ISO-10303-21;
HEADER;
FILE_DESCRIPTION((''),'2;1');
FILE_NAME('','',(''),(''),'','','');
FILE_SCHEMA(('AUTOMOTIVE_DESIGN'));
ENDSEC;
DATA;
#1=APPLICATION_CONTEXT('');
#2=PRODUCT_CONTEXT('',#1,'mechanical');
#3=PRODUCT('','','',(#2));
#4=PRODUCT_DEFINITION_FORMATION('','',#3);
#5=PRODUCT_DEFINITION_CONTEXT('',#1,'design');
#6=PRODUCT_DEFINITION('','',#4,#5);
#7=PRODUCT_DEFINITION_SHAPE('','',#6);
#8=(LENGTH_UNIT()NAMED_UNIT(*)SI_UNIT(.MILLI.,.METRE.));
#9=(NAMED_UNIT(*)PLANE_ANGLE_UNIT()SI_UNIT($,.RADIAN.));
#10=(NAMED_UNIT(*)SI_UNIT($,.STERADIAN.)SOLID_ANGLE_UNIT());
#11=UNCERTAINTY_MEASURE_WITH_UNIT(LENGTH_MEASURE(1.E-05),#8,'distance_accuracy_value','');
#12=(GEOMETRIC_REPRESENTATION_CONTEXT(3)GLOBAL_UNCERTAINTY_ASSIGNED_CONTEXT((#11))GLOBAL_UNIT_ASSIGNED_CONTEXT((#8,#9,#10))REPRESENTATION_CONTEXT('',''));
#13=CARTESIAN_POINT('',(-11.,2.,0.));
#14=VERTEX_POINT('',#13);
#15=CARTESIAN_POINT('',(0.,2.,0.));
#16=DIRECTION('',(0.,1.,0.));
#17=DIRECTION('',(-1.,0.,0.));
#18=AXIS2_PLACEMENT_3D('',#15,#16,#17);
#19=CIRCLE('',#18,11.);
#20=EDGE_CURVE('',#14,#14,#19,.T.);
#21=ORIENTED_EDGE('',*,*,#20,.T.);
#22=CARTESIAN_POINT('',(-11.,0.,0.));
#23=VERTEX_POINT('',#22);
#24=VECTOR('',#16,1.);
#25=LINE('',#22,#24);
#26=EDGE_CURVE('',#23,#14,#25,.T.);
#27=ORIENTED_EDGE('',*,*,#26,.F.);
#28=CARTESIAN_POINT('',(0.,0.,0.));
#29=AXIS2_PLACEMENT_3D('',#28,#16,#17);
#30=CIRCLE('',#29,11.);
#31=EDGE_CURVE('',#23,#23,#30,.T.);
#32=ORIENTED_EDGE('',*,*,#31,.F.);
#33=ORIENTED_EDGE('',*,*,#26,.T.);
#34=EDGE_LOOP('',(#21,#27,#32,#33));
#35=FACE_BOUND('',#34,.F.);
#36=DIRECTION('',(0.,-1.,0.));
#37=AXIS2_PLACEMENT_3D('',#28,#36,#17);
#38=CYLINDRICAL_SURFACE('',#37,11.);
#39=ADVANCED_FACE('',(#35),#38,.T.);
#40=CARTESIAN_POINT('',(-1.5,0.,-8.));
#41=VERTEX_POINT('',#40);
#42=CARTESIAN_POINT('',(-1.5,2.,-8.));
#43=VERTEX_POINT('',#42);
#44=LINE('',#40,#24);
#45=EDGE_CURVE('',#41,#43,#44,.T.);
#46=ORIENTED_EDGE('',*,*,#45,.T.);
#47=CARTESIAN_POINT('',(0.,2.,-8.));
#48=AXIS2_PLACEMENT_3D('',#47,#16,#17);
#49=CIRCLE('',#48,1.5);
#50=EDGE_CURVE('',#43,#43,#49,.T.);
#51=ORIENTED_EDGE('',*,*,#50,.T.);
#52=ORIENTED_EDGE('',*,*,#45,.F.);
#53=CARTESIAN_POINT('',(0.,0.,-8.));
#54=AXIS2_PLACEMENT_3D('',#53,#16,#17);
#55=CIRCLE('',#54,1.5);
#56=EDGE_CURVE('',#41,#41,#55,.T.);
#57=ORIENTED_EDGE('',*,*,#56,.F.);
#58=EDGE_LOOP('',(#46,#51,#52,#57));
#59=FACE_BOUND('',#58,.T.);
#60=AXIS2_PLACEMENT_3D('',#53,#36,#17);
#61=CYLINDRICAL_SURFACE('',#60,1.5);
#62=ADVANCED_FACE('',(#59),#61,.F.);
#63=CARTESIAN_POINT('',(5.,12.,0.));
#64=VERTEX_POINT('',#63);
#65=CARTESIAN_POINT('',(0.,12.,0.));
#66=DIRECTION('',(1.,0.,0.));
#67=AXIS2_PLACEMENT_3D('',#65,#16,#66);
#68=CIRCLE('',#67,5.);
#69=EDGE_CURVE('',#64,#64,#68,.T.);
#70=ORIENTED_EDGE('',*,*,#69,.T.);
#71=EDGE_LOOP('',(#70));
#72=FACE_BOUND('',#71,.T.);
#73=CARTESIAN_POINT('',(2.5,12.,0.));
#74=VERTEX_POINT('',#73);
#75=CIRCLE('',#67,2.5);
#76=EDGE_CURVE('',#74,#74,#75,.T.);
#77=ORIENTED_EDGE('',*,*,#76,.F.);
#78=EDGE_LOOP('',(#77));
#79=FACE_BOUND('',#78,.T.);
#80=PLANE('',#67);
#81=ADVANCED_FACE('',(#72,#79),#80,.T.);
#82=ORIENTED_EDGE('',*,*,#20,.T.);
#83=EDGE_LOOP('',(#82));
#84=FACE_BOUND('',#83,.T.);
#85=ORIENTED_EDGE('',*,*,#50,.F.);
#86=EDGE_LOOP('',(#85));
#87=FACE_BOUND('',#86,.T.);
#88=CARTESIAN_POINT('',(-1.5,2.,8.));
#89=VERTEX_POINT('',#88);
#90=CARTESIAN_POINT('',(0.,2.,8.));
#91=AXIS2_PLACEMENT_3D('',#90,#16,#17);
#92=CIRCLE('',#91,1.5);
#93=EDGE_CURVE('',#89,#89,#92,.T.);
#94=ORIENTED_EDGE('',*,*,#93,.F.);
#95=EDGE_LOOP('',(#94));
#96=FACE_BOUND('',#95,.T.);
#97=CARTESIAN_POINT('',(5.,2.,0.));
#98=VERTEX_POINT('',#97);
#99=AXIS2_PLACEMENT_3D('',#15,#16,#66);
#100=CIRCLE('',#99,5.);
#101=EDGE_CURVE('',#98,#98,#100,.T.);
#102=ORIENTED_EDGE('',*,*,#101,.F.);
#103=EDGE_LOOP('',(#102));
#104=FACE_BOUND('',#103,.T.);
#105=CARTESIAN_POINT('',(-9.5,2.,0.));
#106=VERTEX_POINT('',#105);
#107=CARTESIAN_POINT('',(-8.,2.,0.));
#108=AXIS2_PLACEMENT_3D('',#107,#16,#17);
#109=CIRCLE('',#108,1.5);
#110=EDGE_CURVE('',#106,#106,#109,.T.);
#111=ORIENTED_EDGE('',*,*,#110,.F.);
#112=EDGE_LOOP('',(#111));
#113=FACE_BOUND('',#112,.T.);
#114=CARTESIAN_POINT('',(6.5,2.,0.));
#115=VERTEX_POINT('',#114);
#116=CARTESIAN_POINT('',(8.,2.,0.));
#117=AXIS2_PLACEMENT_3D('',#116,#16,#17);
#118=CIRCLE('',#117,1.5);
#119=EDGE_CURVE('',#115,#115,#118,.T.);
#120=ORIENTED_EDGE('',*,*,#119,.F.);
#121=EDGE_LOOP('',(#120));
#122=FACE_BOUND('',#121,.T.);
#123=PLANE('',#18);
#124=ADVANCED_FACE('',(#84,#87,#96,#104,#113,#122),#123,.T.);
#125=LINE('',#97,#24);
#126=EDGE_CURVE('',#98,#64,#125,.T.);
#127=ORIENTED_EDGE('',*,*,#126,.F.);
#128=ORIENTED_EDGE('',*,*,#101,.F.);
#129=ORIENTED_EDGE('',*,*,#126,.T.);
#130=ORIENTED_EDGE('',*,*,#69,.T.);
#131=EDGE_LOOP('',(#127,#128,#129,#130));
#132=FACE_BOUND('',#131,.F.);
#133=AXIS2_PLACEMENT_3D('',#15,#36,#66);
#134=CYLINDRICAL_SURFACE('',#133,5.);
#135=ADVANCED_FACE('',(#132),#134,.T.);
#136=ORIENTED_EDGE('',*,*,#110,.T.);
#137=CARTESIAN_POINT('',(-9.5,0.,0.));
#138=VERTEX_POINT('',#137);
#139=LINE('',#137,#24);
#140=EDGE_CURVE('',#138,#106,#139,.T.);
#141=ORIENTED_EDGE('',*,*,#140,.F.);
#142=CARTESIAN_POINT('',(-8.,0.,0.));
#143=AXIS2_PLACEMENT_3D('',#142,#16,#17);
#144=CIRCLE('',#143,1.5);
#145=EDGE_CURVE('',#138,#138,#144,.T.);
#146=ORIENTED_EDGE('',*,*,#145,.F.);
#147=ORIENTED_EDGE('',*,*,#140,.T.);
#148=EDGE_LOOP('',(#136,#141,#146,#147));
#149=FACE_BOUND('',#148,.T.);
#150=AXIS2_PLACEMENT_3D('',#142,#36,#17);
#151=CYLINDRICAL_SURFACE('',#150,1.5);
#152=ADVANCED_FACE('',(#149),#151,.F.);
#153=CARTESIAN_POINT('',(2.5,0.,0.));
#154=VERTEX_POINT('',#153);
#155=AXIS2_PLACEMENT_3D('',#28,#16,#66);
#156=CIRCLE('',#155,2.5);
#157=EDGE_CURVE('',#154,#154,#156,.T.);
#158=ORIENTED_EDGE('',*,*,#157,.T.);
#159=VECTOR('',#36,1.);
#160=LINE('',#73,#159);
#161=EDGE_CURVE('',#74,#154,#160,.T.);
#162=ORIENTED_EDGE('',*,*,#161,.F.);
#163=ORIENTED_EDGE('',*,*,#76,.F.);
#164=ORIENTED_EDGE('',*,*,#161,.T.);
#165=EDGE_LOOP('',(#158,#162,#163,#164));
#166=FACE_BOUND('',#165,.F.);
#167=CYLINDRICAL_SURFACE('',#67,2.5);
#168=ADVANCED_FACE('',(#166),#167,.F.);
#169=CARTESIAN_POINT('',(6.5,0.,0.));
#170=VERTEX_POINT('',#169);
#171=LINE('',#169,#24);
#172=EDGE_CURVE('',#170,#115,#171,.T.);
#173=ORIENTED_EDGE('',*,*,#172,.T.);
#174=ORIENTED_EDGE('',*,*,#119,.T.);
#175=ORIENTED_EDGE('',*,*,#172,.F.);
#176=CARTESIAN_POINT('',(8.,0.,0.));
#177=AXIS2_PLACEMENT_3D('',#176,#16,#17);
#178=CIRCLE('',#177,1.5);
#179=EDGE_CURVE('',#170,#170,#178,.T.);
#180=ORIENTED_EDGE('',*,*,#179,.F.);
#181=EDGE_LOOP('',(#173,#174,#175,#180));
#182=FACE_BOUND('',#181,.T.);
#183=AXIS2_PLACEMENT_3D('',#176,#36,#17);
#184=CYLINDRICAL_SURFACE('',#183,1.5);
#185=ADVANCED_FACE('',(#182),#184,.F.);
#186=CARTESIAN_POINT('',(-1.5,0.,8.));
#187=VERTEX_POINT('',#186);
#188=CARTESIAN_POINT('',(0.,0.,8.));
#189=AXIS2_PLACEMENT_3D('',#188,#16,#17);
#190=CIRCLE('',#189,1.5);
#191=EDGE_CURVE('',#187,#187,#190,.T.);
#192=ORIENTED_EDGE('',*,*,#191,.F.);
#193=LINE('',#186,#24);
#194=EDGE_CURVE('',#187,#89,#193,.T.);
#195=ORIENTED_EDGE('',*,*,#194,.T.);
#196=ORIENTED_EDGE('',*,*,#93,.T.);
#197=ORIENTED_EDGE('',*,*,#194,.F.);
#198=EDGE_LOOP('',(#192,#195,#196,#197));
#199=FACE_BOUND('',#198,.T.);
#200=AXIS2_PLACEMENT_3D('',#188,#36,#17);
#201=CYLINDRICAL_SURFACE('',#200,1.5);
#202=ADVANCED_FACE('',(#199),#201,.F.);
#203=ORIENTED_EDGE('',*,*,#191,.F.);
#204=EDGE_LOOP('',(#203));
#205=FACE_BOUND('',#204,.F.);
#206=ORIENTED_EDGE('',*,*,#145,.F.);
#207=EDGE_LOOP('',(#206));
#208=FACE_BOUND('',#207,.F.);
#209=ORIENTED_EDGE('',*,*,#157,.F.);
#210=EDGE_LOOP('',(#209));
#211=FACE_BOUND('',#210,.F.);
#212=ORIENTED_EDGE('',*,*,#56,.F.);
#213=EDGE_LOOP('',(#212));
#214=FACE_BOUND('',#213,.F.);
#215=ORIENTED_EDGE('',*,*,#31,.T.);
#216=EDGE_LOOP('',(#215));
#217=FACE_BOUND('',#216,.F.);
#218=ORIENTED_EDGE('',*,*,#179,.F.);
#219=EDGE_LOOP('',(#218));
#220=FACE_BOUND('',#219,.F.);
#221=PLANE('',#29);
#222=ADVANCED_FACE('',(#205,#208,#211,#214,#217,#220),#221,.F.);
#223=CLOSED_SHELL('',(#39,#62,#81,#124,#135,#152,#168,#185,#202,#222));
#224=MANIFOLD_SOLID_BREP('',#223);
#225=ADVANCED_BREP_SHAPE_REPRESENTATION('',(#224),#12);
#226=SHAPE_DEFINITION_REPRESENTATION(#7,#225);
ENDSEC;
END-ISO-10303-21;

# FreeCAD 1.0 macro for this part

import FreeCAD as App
import Part
import Sketcher

V = App.Vector
Q = App.Units.Quantity

doc = App.newDocument("Part")
body = doc.addObject("PartDesign::Body", "Body")

# Sketch on XZ plane
sketch1 = body.newObject("Sketcher::SketchObject", "Sketch")
sketch1.AttachmentSupport = (doc.getObject("XZ_Plane"), [""])
sketch1.MapMode = "FlatFace"
sketch1.addGeometry(Part.Circle(V(0, 0, 0), V(0, 0, 1), 11), False)
sketch1.addGeometry(Part.Circle(V(0, -8, 0), V(0, 0, 1), 1.5), False)
sketch1.addGeometry(Part.Circle(V(8, 0, 0), V(0, 0, 1), 1.5), False)
sketch1.addGeometry(Part.Circle(V(-8, 0, 0), V(0, 0, 1), 1.5), False)
sketch1.addGeometry(Part.Circle(V(0, 8, 0), V(0, 0, 1), 1.5), False)
sketch1.addConstraint(Sketcher.Constraint("Coincident", 0, 3, -1, 1))
sketch1.addConstraint(Sketcher.Constraint("Equal", 1, 2))
sketch1.addConstraint(Sketcher.Constraint("Equal", 2, 3))
sketch1.addConstraint(Sketcher.Constraint("Equal", 3, 4))
sketch1.addConstraint(Sketcher.Constraint("Symmetric", 2, 3, 3, 3, -1, 1))
sketch1.addConstraint(Sketcher.Constraint("Symmetric", 1, 3, 4, 3, -1, 1))
sketch1.addConstraint(Sketcher.Constraint("PointOnObject", 1, 3, -2))
sketch1.addConstraint(Sketcher.Constraint("PointOnObject", 2, 3, -1))
sketch1.addConstraint(Sketcher.Constraint("Diameter", 0, Q("22 mm")))
sketch1.addConstraint(Sketcher.Constraint("Diameter", 1, Q("3 mm")))
sketch1.addConstraint(Sketcher.Constraint("DistanceX", 3, 3, 2, 3, Q("16 mm")))
sketch1.addConstraint(Sketcher.Constraint("DistanceY", 1, 3, 4, 3, Q("16 mm")))
pad1 = body.newObject("PartDesign::Pad", "Pad")
pad1.Profile = sketch1
pad1.Length = 2
pad1.Reversed = True

# Sketch on XZ plane
sketch2 = body.newObject("Sketcher::SketchObject", "Sketch001")
sketch2.AttachmentSupport = (doc.getObject("XZ_Plane"), [""])
sketch2.MapMode = "FlatFace"
sketch2.AttachmentOffset = App.Placement(V(0, 0, -2), App.Rotation())
sketch2.addGeometry(Part.Circle(V(0, 0, 0), V(0, 0, 1), 5), False)
sketch2.addConstraint(Sketcher.Constraint("Coincident", 0, 3, -1, 1))
sketch2.addConstraint(Sketcher.Constraint("Diameter", 0, Q("10 mm")))
pad2 = body.newObject("PartDesign::Pad", "Pad001")
pad2.Profile = sketch2
pad2.Length = 10
pad2.Reversed = True

# Sketch on XZ plane
sketch3 = body.newObject("Sketcher::SketchObject", "Sketch002")
sketch3.AttachmentSupport = (doc.getObject("XZ_Plane"), [""])
sketch3.MapMode = "FlatFace"
sketch3.AttachmentOffset = App.Placement(V(0, 0, -12), App.Rotation())
sketch3.addGeometry(Part.Circle(V(0, 0, 0), V(0, 0, 1), 2.5), False)
sketch3.addConstraint(Sketcher.Constraint("Coincident", 0, 3, -1, 1))
sketch3.addConstraint(Sketcher.Constraint("Diameter", 0, Q("5 mm")))
pocket1 = body.newObject("PartDesign::Pocket", "Pocket")
pocket1.Profile = sketch3
pocket1.Type = "ThroughAll"
pocket1.Reversed = True

doc.recompute()
